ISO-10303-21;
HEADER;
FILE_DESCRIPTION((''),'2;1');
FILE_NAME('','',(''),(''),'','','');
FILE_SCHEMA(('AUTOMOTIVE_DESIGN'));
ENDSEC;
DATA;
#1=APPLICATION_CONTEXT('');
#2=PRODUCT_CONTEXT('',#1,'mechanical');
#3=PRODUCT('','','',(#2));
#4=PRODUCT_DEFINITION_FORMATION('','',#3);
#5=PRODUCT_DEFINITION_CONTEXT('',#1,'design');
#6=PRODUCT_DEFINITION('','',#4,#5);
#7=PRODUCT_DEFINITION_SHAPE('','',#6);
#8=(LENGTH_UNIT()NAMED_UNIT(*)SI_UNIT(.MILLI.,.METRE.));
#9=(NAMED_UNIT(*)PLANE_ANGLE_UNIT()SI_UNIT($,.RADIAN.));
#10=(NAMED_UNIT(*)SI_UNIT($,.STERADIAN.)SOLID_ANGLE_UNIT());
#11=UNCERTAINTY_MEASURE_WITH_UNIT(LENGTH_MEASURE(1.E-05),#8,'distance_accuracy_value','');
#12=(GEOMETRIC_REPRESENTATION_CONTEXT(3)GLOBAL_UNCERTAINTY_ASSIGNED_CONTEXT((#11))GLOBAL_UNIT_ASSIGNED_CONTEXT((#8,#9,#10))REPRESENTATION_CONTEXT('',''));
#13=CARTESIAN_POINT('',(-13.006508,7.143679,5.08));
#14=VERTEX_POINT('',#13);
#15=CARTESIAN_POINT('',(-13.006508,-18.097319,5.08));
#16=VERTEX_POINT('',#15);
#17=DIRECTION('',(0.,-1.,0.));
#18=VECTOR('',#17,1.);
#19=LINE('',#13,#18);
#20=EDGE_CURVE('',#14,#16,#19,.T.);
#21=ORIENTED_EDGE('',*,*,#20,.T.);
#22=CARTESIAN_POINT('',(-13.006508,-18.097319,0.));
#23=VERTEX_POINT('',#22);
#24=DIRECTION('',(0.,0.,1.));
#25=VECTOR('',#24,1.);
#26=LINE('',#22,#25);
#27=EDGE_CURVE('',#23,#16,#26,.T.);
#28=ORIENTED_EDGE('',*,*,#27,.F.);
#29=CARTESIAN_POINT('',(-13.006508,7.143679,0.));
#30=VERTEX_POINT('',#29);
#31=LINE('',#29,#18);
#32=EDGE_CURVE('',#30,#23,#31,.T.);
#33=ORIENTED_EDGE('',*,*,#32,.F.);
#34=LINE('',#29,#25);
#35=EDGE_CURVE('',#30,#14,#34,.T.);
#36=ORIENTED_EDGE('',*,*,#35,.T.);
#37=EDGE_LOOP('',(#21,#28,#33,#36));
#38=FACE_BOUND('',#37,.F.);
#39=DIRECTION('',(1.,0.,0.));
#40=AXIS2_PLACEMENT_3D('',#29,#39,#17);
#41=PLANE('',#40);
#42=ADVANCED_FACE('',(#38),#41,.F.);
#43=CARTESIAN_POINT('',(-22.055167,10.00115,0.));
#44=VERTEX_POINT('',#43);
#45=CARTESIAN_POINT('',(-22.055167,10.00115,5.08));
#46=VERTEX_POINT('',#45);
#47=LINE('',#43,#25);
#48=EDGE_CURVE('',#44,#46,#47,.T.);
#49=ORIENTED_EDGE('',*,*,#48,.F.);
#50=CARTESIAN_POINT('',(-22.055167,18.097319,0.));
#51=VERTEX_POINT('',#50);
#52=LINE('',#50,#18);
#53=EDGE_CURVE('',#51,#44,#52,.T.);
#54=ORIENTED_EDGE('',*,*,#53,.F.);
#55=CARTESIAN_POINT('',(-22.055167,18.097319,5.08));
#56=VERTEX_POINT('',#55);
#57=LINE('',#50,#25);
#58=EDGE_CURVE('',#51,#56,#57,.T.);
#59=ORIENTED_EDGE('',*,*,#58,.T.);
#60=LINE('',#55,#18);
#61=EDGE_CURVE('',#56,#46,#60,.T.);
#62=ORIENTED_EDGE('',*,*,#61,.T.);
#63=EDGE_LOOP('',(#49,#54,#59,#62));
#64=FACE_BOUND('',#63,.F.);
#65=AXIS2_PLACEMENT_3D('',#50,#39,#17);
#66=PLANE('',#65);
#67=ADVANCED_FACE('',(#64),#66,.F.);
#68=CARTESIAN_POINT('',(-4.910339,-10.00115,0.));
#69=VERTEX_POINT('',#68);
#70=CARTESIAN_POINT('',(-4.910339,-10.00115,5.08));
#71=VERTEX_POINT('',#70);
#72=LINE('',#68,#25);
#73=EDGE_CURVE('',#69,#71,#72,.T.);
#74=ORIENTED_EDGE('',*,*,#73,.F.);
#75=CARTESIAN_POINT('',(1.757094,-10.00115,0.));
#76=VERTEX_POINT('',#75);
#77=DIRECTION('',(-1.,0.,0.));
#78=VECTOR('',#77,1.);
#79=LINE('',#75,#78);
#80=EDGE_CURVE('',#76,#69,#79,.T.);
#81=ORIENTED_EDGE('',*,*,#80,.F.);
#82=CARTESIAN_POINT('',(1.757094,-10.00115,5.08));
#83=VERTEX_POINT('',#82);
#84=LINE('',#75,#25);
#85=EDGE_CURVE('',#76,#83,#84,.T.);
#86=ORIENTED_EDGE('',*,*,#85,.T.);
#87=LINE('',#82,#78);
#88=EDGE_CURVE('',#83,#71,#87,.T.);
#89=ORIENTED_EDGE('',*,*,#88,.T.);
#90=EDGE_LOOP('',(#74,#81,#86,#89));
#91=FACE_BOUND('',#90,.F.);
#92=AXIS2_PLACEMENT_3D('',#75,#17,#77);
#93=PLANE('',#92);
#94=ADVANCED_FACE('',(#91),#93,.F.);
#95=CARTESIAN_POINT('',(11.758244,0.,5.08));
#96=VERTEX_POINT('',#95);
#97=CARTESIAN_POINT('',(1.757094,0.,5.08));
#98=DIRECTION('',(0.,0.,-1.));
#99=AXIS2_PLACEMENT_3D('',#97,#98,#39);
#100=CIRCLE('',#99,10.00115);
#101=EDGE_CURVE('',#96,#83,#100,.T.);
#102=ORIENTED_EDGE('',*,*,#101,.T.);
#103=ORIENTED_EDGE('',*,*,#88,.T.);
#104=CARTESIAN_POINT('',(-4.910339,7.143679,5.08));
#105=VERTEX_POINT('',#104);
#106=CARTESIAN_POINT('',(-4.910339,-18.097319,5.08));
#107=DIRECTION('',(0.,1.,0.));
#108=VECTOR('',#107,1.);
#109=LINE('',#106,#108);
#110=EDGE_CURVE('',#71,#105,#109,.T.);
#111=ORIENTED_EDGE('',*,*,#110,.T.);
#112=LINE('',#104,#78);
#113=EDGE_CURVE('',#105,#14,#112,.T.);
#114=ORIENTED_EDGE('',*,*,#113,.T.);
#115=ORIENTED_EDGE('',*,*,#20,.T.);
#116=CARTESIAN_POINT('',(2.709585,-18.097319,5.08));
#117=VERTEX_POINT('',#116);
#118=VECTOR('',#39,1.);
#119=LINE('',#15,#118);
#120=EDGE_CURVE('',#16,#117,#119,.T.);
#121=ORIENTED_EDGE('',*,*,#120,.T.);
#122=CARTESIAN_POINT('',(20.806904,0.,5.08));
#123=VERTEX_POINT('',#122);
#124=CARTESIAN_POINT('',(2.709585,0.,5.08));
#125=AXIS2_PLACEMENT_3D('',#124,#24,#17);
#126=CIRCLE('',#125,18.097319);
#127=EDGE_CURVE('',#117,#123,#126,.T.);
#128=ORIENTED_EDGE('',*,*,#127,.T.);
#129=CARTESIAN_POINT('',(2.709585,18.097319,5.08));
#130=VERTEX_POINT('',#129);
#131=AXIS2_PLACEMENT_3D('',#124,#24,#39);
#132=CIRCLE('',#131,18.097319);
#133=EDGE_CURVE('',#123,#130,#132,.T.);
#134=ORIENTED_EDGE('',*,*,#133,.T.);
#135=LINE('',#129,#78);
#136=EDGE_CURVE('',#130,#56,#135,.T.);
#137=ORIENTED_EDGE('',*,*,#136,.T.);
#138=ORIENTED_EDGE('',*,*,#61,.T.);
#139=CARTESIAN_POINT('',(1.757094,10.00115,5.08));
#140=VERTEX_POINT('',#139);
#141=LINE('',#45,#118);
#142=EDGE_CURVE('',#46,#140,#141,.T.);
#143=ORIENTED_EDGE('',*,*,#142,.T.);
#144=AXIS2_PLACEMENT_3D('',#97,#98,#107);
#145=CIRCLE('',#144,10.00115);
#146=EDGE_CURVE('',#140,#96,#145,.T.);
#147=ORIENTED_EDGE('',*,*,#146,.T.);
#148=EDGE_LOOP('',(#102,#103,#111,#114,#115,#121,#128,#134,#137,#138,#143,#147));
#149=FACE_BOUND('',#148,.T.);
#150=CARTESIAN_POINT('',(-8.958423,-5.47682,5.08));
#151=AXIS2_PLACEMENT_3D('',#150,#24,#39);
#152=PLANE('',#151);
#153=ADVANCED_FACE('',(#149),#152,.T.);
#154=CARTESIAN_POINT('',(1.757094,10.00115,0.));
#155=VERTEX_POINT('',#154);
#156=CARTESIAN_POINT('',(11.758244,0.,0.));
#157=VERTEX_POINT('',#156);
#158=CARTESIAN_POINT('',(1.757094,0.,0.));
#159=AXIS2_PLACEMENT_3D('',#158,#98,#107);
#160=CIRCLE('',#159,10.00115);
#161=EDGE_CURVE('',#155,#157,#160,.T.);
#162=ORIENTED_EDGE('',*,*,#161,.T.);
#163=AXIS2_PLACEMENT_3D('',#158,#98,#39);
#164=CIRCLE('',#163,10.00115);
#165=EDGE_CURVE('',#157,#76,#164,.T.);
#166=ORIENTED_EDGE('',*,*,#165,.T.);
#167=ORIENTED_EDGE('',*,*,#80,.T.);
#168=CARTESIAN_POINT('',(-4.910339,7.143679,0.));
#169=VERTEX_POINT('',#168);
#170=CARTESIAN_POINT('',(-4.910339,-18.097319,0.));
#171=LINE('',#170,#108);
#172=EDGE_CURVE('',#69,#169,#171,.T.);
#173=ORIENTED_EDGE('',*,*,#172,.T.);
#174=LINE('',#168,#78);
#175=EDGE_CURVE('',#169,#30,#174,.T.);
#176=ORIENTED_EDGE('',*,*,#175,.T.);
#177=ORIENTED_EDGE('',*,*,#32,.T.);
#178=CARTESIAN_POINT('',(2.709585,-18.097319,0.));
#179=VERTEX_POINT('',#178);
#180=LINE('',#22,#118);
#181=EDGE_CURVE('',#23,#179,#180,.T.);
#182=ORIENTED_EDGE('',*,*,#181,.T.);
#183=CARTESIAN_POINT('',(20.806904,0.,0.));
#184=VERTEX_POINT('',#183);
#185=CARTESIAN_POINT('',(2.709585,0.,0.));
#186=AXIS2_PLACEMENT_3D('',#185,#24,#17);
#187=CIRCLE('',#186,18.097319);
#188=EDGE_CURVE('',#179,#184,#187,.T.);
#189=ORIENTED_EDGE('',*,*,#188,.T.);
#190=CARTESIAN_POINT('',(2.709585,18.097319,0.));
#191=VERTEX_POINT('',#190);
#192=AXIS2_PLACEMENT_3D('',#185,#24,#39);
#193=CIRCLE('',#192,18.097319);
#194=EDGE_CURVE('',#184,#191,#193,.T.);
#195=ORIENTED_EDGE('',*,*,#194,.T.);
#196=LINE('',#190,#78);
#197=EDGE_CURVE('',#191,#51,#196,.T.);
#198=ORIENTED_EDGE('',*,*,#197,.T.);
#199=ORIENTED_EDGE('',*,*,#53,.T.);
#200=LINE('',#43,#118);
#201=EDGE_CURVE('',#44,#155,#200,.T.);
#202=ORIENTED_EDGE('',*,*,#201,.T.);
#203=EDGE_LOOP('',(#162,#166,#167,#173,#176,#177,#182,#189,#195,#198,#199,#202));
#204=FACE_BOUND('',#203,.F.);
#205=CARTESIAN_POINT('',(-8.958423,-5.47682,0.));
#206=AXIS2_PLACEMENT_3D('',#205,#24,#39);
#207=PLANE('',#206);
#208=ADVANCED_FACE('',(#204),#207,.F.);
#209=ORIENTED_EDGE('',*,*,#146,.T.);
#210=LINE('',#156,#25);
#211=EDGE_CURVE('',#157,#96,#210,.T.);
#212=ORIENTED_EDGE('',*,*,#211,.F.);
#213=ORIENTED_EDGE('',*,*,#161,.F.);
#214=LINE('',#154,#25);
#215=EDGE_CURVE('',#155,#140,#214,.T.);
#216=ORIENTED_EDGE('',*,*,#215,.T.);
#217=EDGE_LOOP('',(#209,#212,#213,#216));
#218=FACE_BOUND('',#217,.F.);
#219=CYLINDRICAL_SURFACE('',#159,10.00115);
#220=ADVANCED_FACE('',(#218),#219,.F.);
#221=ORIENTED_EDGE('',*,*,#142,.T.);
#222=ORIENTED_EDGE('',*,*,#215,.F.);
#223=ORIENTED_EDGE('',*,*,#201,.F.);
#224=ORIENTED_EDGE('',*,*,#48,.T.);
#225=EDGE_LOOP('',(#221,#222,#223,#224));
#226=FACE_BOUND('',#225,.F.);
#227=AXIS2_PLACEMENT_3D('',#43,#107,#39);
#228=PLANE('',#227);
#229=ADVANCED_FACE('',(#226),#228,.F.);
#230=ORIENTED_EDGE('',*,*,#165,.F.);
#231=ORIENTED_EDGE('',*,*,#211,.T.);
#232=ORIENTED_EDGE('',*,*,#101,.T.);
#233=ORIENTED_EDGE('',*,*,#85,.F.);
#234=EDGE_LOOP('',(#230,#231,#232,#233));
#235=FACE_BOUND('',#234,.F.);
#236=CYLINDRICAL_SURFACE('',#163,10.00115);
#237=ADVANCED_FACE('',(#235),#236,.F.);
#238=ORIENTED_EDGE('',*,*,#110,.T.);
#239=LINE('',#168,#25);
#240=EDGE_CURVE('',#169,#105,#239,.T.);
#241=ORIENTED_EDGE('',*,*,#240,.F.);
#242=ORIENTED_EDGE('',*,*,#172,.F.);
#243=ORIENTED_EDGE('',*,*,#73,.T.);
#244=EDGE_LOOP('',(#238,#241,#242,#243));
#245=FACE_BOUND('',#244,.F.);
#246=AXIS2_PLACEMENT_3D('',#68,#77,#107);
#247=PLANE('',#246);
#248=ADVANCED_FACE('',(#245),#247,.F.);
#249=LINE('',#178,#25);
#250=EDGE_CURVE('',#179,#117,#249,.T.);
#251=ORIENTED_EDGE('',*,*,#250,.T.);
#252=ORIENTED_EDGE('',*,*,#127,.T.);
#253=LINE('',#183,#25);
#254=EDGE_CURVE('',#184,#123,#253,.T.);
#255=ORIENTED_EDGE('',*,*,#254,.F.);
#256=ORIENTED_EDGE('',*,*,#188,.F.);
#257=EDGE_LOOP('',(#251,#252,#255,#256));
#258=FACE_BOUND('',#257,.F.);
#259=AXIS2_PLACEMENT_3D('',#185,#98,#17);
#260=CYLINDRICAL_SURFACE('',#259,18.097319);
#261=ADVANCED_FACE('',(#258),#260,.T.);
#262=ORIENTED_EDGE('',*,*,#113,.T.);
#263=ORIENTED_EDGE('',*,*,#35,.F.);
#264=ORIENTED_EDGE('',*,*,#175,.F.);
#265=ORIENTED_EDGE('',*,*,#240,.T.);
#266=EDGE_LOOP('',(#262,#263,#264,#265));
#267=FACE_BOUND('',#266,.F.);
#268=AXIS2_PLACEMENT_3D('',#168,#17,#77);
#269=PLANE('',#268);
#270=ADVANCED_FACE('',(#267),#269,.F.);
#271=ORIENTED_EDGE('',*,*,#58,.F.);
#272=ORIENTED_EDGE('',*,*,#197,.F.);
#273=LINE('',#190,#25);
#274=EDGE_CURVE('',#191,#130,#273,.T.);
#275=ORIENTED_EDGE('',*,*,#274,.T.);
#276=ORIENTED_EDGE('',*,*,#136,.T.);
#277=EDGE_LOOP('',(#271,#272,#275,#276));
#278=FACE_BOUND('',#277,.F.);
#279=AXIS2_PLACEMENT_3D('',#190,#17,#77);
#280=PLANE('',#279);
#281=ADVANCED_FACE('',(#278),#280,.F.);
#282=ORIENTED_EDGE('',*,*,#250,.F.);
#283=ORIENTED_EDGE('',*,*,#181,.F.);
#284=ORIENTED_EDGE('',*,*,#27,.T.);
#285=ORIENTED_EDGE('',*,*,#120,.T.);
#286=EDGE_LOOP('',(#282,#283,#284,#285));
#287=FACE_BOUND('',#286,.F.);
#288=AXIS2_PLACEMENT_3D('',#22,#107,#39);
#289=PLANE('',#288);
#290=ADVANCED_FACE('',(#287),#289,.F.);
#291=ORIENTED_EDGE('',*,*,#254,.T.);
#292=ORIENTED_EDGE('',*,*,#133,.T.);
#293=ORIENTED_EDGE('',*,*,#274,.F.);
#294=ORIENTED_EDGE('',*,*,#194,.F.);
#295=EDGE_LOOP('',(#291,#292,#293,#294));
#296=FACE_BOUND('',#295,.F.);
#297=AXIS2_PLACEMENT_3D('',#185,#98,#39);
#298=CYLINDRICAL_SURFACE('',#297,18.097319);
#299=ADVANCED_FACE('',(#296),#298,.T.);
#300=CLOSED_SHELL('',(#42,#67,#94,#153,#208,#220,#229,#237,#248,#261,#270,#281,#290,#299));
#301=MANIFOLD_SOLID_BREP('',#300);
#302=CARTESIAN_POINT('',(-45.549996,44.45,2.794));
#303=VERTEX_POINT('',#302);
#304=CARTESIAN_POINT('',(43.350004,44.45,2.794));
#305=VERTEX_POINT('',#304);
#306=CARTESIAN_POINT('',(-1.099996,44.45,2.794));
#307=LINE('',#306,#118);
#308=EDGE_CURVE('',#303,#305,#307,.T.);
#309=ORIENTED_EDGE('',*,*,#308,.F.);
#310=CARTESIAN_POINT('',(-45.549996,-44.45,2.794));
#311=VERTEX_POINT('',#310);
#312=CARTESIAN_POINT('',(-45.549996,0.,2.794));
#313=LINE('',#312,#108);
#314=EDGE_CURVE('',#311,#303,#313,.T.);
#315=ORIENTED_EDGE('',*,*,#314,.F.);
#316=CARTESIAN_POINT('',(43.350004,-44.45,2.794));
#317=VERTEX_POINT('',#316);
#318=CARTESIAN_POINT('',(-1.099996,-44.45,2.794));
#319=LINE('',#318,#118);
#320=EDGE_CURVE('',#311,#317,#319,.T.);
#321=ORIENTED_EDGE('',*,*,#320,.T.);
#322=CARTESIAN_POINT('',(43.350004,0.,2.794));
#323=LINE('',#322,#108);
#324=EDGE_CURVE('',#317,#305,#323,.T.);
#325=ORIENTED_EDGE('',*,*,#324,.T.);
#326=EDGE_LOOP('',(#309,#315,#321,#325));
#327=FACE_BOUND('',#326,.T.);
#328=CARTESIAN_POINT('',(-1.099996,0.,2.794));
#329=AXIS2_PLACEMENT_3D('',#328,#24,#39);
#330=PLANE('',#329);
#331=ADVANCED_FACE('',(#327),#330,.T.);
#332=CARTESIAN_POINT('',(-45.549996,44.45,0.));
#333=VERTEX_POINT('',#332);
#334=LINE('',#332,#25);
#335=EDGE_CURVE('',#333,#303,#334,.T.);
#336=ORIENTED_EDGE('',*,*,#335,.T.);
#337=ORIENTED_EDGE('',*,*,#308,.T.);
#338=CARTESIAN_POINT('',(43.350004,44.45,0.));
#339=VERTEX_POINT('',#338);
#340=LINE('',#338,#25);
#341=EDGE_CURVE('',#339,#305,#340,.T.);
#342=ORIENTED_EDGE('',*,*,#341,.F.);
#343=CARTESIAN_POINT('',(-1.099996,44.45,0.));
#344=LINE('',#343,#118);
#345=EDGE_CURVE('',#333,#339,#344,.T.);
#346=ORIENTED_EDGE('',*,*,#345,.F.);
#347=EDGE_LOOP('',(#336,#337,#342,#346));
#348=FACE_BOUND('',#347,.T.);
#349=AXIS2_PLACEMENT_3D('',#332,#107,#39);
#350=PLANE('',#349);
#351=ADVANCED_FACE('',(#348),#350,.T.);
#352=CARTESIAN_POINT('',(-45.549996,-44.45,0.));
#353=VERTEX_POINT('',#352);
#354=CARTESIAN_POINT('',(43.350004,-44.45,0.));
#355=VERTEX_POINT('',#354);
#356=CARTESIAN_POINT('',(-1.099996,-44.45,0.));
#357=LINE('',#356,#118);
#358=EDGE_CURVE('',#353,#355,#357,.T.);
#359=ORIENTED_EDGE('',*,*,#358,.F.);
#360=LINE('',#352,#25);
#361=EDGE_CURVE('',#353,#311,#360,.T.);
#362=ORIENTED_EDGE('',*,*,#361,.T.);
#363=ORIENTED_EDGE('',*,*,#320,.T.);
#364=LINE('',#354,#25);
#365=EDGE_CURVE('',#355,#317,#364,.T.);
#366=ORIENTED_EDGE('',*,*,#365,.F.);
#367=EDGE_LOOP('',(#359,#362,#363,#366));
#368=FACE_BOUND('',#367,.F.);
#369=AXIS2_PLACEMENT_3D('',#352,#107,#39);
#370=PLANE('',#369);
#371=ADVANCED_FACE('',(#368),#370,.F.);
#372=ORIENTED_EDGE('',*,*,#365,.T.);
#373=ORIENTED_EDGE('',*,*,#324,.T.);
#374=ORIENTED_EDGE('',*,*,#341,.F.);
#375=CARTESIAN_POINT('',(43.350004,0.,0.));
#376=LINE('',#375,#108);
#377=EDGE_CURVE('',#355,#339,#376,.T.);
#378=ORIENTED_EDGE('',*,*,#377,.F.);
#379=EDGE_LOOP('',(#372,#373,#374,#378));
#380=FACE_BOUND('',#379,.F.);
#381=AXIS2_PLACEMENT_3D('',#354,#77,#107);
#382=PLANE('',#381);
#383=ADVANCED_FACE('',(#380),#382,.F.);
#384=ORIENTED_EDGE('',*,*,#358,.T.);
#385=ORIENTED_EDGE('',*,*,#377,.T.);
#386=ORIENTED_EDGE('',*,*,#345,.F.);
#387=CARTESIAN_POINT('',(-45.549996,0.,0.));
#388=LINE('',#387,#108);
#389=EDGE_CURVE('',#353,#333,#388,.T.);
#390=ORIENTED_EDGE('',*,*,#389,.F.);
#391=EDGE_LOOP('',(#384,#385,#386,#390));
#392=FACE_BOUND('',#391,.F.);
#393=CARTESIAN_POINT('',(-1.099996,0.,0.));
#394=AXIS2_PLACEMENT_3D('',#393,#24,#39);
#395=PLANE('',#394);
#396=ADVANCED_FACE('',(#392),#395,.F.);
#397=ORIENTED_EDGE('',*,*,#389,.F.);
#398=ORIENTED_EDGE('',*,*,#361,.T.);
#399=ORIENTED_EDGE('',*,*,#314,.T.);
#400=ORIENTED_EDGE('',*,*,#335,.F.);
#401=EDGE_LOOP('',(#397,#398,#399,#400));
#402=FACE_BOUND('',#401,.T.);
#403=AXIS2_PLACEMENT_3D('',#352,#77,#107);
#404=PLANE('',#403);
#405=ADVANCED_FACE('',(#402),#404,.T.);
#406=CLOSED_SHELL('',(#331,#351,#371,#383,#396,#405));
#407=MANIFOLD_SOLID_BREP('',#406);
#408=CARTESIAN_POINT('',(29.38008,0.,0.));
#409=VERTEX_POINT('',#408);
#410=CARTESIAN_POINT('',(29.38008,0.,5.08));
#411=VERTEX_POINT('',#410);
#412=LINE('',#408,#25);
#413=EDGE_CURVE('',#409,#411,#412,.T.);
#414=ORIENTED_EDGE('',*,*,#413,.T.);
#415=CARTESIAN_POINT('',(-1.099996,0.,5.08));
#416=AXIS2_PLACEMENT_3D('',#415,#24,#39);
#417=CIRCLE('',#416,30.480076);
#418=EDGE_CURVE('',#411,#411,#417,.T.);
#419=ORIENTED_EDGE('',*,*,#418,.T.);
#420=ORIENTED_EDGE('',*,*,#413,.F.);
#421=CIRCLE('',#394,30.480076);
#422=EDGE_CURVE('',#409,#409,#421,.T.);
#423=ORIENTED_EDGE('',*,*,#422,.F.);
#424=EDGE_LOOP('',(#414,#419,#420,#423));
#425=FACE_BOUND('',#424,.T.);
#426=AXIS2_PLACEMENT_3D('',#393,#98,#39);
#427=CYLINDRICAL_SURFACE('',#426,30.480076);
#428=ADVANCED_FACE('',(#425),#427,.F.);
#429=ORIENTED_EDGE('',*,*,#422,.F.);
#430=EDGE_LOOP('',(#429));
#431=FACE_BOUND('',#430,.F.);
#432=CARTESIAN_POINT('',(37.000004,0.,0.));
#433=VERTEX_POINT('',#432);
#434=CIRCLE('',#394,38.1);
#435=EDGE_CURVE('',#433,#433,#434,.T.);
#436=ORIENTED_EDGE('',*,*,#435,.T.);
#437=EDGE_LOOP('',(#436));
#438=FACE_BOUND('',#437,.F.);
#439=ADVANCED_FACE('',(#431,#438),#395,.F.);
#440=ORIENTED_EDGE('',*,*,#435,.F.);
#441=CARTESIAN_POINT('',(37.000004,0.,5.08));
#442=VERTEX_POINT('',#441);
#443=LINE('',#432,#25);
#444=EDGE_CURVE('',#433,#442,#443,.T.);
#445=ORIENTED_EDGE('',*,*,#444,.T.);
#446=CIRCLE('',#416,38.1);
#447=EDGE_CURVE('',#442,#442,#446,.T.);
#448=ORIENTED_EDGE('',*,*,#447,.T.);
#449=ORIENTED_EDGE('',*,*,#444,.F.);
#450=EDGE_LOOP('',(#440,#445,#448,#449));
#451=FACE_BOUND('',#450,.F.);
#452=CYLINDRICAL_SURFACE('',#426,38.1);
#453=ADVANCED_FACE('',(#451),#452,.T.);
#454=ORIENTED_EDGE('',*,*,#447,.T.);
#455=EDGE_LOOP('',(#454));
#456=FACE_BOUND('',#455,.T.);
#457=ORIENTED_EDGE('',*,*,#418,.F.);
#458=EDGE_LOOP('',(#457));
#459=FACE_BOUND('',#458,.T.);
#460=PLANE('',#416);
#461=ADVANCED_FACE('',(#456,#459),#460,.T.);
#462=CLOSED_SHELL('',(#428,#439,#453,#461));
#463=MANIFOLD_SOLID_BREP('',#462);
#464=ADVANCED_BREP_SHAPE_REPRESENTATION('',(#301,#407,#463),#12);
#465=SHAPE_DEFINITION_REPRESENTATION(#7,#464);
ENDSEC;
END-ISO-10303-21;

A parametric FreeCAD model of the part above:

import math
import FreeCAD as App
import Part
import Sketcher
from FreeCAD import Vector
Q = App.Units.Quantity


def add_polygon(sketch, points):
    """Adds a closed chain of lines whose ends are joined by coincident constraints."""
    first, n = sketch.GeometryCount, len(points)
    for a, b in zip(points, points[1:] + points[:1]):
        sketch.addGeometry(Part.LineSegment(App.Vector(*a, 0), App.Vector(*b, 0)), False)
    for i in range(n):
        sketch.addConstraint(Sketcher.Constraint("Coincident", first + i, 2, first + (i + 1) % n, 1))

doc = App.newDocument("Part")
body = doc.addObject("PartDesign::Body", "Body")

# Sketch on XY plane
sketch1 = body.newObject("Sketcher::SketchObject", "Sketch")
sketch1.AttachmentSupport = (doc.getObject("XY_Plane"), [""])
sketch1.MapMode = "FlatFace"
sketch1.addGeometry([
    Part.LineSegment(Vector(-13, -18, 0), Vector(3, -18, 0)),  # 0
    Part.ArcOfCircle(Part.Circle(Vector(3, 0, 0), Vector(0, 0, 1), 18), math.radians(-90), math.radians(0)),  # 1
    Part.ArcOfCircle(Part.Circle(Vector(3, 0, 0), Vector(0, 0, 1), 18), math.radians(0), math.radians(90)),  # 2
    Part.LineSegment(Vector(3, 18, 0), Vector(-22, 18, 0)),  # 3
    Part.LineSegment(Vector(-22, 18, 0), Vector(-22, 10, 0)),  # 4
    Part.LineSegment(Vector(-22, 10, 0), Vector(2, 10, 0)),  # 5
    Part.ArcOfCircle(Part.Circle(Vector(2, 0, 0), Vector(0, 0, 1), 10), math.radians(0), math.radians(90)),  # 6
    Part.ArcOfCircle(Part.Circle(Vector(2, 0, 0), Vector(0, 0, 1), 10), math.radians(-90), math.radians(0)),  # 7
    Part.LineSegment(Vector(2, -10, 0), Vector(-5, -10, 0)),  # 8
    Part.LineSegment(Vector(-5, -10, 0), Vector(-5, 7, 0)),  # 9
    Part.LineSegment(Vector(-5, 7, 0), Vector(-13, 7, 0)),  # 10
    Part.LineSegment(Vector(-13, 7, 0), Vector(-13, -18, 0)),  # 11
], False)
sketch1.addConstraint([
    Sketcher.Constraint("Tangent", 0, 2, 1, 1),
    Sketcher.Constraint("Tangent", 1, 2, 2, 1),
    Sketcher.Constraint("Tangent", 2, 2, 3, 1),
    Sketcher.Constraint("Coincident", 3, 2, 4, 1),
    Sketcher.Constraint("Coincident", 4, 2, 5, 1),
    Sketcher.Constraint("Tangent", 5, 2, 6, 2),
    Sketcher.Constraint("Tangent", 6, 1, 7, 2),
    Sketcher.Constraint("Tangent", 7, 1, 8, 1),
    Sketcher.Constraint("Coincident", 8, 2, 9, 1),
    Sketcher.Constraint("Coincident", 9, 2, 10, 1),
    Sketcher.Constraint("Coincident", 10, 2, 11, 1),
    Sketcher.Constraint("Coincident", 11, 2, 0, 1),
    Sketcher.Constraint("Horizontal", 0),
    Sketcher.Constraint("Horizontal", 3),
    Sketcher.Constraint("Vertical", 4),
    Sketcher.Constraint("Horizontal", 5),
    Sketcher.Constraint("Horizontal", 8),
    Sketcher.Constraint("Vertical", 9),
    Sketcher.Constraint("Horizontal", 10),
    Sketcher.Constraint("Vertical", 11),
    Sketcher.Constraint("Equal", 1, 2),
    Sketcher.Constraint("Equal", 6, 7),
    Sketcher.Constraint("PointOnObject", 1, 3, -1),
    Sketcher.Constraint("PointOnObject", 6, 3, -1),
    Sketcher.Constraint("PointOnObject", 1, 2, -1),
    Sketcher.Constraint("PointOnObject", 6, 1, -1),
    Sketcher.Constraint("Equal", 10, 4),
    Sketcher.Constraint("Radius", 1, 18.097319),
    Sketcher.Constraint("Radius", 6, 10.00115),
    Sketcher.Constraint("DistanceX", 5, 1, 5, 2, 23.812262),
    Sketcher.Constraint("DistanceY", 9, 1, 9, 2, 17.144829),
    Sketcher.Constraint("DistanceX", 0, 1, 0, 2, 15.716093),
    Sketcher.Constraint("DistanceX", 3, 2, 3, 1, 24.764752),
    Sketcher.Constraint("DistanceX", 8, 2, -1, 1, 4.910339),
])
pad1 = body.newObject("PartDesign::Pad", "Pad")
pad1.Profile = sketch1
pad1.Length = Q("0.2 in")
body2 = doc.addObject("PartDesign::Body", "Body001")

# Sketch on XY plane
sketch2 = body2.newObject("Sketcher::SketchObject", "Sketch001")
sketch2.AttachmentSupport = (doc.getObject("XY_Plane001"), [""])
sketch2.MapMode = "FlatFace"
sketch2.addGeometry([
    Part.Circle(Vector(-1, 0, 0), Vector(0, 0, 1), 38),
    Part.Circle(Vector(-1, 0, 0), Vector(0, 0, 1), 30),
], False)
sketch2.addConstraint([
    Sketcher.Constraint("Coincident", 1, 3, 0, 3),
    Sketcher.Constraint("PointOnObject", 0, 3, -1),
    Sketcher.Constraint("Diameter", 0, Q("3 in")),
    Sketcher.Constraint("Diameter", 1, 60.960152),
    Sketcher.Constraint("DistanceX", 0, 3, -1, 1, 1.099996),
])
pad2 = body2.newObject("PartDesign::Pad", "Pad001")
pad2.Profile = sketch2
pad2.Length = Q("0.2 in")
body3 = doc.addObject("PartDesign::Body", "Body002")

# Sketch on XY plane
sketch3 = body3.newObject("Sketcher::SketchObject", "Sketch002")
sketch3.AttachmentSupport = (doc.getObject("XY_Plane002"), [""])
sketch3.MapMode = "FlatFace"
add_polygon(sketch3, [(-46, 44), (-46, -44), (43, -44), (43, 44)])  # lines 0-3
sketch3.addConstraint([
    Sketcher.Constraint("Vertical", 0),
    Sketcher.Constraint("Horizontal", 1),
    Sketcher.Constraint("Vertical", 2),
    Sketcher.Constraint("Horizontal", 3),
    Sketcher.Constraint("Equal", 3, 0),
    Sketcher.Constraint("DistanceX", 1, 1, 1, 2, Q("3.5 in")),
    Sketcher.Constraint("DistanceY", 0, 2, -1, 1, Q("1.75 in")),
    Sketcher.Constraint("DistanceX", 0, 2, -1, 1, 45.549996),
])
pad3 = body3.newObject("PartDesign::Pad", "Pad002")
pad3.Profile = sketch3
pad3.Length = Q("0.11 in")

doc.recompute()
